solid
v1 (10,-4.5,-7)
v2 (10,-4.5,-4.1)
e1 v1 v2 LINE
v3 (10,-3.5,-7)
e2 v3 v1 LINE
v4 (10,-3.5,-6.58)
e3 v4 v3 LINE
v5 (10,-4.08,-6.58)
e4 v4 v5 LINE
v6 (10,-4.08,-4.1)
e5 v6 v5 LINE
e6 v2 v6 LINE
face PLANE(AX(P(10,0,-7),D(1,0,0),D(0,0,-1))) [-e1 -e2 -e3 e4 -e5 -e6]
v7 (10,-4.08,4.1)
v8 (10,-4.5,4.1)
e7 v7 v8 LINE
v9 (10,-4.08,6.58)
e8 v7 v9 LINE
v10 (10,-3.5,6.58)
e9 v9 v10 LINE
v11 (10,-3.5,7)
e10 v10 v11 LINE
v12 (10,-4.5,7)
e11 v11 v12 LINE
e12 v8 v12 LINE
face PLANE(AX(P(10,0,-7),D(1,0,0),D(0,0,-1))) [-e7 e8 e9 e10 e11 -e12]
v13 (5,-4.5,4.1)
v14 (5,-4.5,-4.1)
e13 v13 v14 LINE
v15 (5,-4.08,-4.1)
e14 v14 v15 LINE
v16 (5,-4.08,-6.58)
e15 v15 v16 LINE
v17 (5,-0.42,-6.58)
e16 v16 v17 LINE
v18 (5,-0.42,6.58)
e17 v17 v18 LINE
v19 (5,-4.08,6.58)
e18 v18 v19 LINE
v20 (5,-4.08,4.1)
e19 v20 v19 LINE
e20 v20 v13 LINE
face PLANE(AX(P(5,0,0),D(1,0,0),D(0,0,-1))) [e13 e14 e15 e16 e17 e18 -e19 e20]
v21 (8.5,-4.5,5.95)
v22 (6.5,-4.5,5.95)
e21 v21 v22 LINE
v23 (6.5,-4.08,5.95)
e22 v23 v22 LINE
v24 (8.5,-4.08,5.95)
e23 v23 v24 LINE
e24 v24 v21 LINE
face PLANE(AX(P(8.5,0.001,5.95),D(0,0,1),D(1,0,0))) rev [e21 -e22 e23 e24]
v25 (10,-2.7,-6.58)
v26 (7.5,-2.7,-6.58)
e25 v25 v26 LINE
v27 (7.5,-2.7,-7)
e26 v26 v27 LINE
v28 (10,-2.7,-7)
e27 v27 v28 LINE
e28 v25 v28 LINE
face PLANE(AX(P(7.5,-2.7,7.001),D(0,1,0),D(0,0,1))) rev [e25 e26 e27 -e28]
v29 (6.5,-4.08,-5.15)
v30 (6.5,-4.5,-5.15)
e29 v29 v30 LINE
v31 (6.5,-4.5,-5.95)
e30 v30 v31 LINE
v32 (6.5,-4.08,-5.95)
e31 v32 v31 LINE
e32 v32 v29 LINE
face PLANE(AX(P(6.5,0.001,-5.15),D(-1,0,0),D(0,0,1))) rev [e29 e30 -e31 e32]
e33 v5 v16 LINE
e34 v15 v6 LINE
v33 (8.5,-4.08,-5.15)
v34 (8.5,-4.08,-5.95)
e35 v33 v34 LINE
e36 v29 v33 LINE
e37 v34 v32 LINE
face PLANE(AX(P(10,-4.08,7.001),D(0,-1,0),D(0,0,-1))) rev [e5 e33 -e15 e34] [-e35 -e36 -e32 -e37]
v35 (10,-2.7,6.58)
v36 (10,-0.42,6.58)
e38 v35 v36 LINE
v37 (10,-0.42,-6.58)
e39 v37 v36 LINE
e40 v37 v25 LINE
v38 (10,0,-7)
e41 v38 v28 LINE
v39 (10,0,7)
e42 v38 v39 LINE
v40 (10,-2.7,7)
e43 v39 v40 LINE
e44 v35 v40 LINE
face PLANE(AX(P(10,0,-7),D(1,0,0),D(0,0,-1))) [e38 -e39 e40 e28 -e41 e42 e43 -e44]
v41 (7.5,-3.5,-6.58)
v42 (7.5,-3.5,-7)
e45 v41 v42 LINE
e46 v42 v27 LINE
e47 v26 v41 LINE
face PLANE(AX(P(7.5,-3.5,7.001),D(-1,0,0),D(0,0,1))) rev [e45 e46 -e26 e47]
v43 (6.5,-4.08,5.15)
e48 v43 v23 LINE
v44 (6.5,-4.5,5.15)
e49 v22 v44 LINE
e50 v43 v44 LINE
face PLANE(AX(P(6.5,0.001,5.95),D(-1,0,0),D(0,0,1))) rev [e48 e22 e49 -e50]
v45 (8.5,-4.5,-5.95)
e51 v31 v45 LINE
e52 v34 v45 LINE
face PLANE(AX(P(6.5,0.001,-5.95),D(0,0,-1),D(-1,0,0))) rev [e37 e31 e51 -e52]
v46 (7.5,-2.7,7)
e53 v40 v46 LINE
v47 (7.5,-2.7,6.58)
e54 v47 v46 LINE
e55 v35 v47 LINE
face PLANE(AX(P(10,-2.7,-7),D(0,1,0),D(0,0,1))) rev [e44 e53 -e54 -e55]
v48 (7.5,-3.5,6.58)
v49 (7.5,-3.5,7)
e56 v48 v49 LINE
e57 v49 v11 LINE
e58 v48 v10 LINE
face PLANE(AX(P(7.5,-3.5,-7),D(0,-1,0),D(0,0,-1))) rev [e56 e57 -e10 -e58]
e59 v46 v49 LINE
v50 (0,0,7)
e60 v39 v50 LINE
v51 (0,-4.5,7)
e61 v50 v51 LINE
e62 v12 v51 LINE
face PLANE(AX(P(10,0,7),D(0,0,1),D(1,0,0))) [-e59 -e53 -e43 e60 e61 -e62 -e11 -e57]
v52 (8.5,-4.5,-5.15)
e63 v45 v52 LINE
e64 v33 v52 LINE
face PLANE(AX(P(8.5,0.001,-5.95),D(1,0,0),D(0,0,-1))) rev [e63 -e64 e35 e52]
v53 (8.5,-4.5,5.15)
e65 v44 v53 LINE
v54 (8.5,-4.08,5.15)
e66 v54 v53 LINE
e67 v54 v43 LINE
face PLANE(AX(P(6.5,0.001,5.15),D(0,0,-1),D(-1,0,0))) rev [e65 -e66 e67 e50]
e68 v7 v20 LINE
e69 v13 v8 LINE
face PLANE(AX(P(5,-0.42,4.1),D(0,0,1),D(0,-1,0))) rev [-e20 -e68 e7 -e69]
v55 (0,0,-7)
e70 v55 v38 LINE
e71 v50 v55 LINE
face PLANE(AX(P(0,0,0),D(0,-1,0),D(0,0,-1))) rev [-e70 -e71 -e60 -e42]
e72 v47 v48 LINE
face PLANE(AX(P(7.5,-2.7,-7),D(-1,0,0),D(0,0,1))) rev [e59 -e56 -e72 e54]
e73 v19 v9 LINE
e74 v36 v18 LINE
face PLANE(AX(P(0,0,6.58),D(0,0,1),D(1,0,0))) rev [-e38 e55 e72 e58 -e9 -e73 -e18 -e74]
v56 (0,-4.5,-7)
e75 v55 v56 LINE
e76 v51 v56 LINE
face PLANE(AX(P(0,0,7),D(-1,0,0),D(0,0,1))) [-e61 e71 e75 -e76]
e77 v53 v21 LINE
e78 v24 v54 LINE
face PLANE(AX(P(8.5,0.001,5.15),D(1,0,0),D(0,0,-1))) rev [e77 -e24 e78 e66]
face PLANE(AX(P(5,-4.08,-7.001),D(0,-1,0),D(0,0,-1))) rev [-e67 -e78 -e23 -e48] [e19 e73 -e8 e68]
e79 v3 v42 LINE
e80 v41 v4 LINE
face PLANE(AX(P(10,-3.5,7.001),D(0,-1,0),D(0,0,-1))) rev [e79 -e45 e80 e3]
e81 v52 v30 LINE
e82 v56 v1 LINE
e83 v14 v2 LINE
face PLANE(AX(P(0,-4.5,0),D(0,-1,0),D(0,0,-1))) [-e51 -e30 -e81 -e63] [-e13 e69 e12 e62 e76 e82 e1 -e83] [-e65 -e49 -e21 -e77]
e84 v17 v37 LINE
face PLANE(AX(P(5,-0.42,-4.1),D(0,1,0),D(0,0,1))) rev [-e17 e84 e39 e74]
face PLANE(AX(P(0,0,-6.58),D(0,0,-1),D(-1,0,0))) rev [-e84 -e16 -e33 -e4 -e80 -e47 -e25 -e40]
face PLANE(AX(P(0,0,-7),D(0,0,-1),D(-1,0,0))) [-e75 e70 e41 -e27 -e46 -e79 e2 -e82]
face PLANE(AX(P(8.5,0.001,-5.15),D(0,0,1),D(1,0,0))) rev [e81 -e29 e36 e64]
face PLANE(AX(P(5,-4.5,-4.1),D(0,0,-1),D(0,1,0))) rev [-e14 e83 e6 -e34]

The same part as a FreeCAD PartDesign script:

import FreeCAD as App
import Part
import Sketcher

doc = App.newDocument("Part")
body = doc.addObject("PartDesign::Body", "Body")

sketch1 = body.newObject("Sketcher::SketchObject", "Sketch")
sketch1.AttachmentSupport = (doc.getObject("XZ_Plane"), [""])
sketch1.MapMode = "FlatFace"
sketch1.AttachmentOffset = App.Placement(App.Vector(0, 0, 4.5), App.Rotation())
sketch1.addGeometry(Part.LineSegment(App.Vector(0, 7, 0), App.Vector(0, -7, 0)), False)
sketch1.addGeometry(Part.LineSegment(App.Vector(0, -7, 0), App.Vector(10, -7, 0)), False)
sketch1.addGeometry(Part.LineSegment(App.Vector(10, -7, 0), App.Vector(10, 7, 0)), False)
sketch1.addGeometry(Part.LineSegment(App.Vector(10, 7, 0), App.Vector(0, 7, 0)), False)
sketch1.addConstraint(Sketcher.Constraint("Coincident", 0, 2, 1, 1))
sketch1.addConstraint(Sketcher.Constraint("Coincident", 1, 2, 2, 1))
sketch1.addConstraint(Sketcher.Constraint("Coincident", 2, 2, 3, 1))
sketch1.addConstraint(Sketcher.Constraint("Coincident", 3, 2, 0, 1))
sketch1.addConstraint(Sketcher.Constraint("Vertical", 0))
sketch1.addConstraint(Sketcher.Constraint("Horizontal", 1))
sketch1.addConstraint(Sketcher.Constraint("Vertical", 2))
sketch1.addConstraint(Sketcher.Constraint("Horizontal", 3))
sketch1.addConstraint(Sketcher.Constraint("Symmetric", 0, 2, 3, 2, -1, 1))
sketch1.addConstraint(Sketcher.Constraint("DistanceX", 1, 1, 1, 2, 10.0))
sketch1.addConstraint(Sketcher.Constraint("DistanceY", 0, 2, 0, 1, 14.0))
pad1 = body.newObject("PartDesign::Pad", "Pad")
pad1.Profile = sketch1
pad1.Length = 4.5
pad1.Reversed = True

sketch2 = body.newObject("Sketcher::SketchObject", "Sketch001")
sketch2.AttachmentSupport = (doc.getObject("YZ_Plane"), [""])
sketch2.MapMode = "FlatFace"
sketch2.AttachmentOffset = App.Placement(App.Vector(0, 0, 10), App.Rotation())
sketch2.addGeometry(Part.LineSegment(App.Vector(-0.42, 4.1, 0), App.Vector(-4.5, 4.1, 0)), False)
sketch2.addGeometry(Part.LineSegment(App.Vector(-4.5, 4.1, 0), App.Vector(-4.5, -4.1, 0)), False)
sketch2.addGeometry(Part.LineSegment(App.Vector(-4.5, -4.1, 0), App.Vector(-0.42, -4.1, 0)), False)
sketch2.addGeometry(Part.LineSegment(App.Vector(-0.42, -4.1, 0), App.Vector(-0.42, 4.1, 0)), False)
sketch2.addConstraint(Sketcher.Constraint("Coincident", 0, 2, 1, 1))
sketch2.addConstraint(Sketcher.Constraint("Coincident", 1, 2, 2, 1))
sketch2.addConstraint(Sketcher.Constraint("Coincident", 2, 2, 3, 1))
sketch2.addConstraint(Sketcher.Constraint("Coincident", 3, 2, 0, 1))
sketch2.addConstraint(Sketcher.Constraint("Horizontal", 0))
sketch2.addConstraint(Sketcher.Constraint("Vertical", 1))
sketch2.addConstraint(Sketcher.Constraint("Horizontal", 2))
sketch2.addConstraint(Sketcher.Constraint("Vertical", 3))
sketch2.addConstraint(Sketcher.Constraint("DistanceY", 1, 2, 1, 1, 8.2))
sketch2.addConstraint(Sketcher.Constraint("DistanceX", 0, 2, 0, 1, 4.08))
sketch2.addConstraint(Sketcher.Constraint("DistanceX", 0, 2, -1, 1, 4.5))
sketch2.addConstraint(Sketcher.Constraint("DistanceY", -1, 1, 0, 2, 4.1))
pocket1 = body.newObject("PartDesign::Pocket", "Pocket")
pocket1.Profile = sketch2
pocket1.Length = 5

sketch3 = body.newObject("Sketcher::SketchObject", "Sketch002")
sketch3.AttachmentSupport = (doc.getObject("XY_Plane"), [""])
sketch3.MapMode = "FlatFace"
sketch3.AttachmentOffset = App.Placement(App.Vector(0, 0, 6.58), App.Rotation())
sketch3.addGeometry(Part.LineSegment(App.Vector(5, -0.42, 0), App.Vector(5, -4.08, 0)), False)
sketch3.addGeometry(Part.LineSegment(App.Vector(5, -4.08, 0), App.Vector(10, -4.08, 0)), False)
sketch3.addGeometry(Part.LineSegment(App.Vector(10, -4.08, 0), App.Vector(10, -0.42, 0)), False)
sketch3.addGeometry(Part.LineSegment(App.Vector(10, -0.42, 0), App.Vector(5, -0.42, 0)), False)
sketch3.addConstraint(Sketcher.Constraint("Coincident", 0, 2, 1, 1))
sketch3.addConstraint(Sketcher.Constraint("Coincident", 1, 2, 2, 1))
sketch3.addConstraint(Sketcher.Constraint("Coincident", 2, 2, 3, 1))
sketch3.addConstraint(Sketcher.Constraint("Coincident", 3, 2, 0, 1))
sketch3.addConstraint(Sketcher.Constraint("Vertical", 0))
sketch3.addConstraint(Sketcher.Constraint("Horizontal", 1))
sketch3.addConstraint(Sketcher.Constraint("Vertical", 2))
sketch3.addConstraint(Sketcher.Constraint("Horizontal", 3))
sketch3.addConstraint(Sketcher.Constraint("DistanceX", 1, 1, 1, 2, 5.0))
sketch3.addConstraint(Sketcher.Constraint("DistanceX", -1, 1, 0, 2, 5.0))
sketch3.addConstraint(Sketcher.Constraint("DistanceY", 0, 2, 0, 1, 3.66))
sketch3.addConstraint(Sketcher.Constraint("DistanceY", 0, 2, -1, 1, 4.08))
pocket2 = body.newObject("PartDesign::Pocket", "Pocket001")
pocket2.Profile = sketch3
pocket2.Type = "UpToFirst"

sketch4 = body.newObject("Sketcher::SketchObject", "Sketch003")
sketch4.AttachmentSupport = (doc.getObject("XY_Plane"), [""])
sketch4.MapMode = "FlatFace"
sketch4.AttachmentOffset = App.Placement(App.Vector(0, 0, -6.58), App.Rotation())
sketch4.addGeometry(Part.LineSegment(App.Vector(10, -0.42, 0), App.Vector(10, -4.08, 0)), False)
sketch4.addGeometry(Part.LineSegment(App.Vector(10, -4.08, 0), App.Vector(5, -4.08, 0)), False)
sketch4.addGeometry(Part.LineSegment(App.Vector(5, -4.08, 0), App.Vector(5, -0.42, 0)), False)
sketch4.addGeometry(Part.LineSegment(App.Vector(5, -0.42, 0), App.Vector(10, -0.42, 0)), False)
sketch4.addConstraint(Sketcher.Constraint("Coincident", 0, 2, 1, 1))
sketch4.addConstraint(Sketcher.Constraint("Coincident", 1, 2, 2, 1))
sketch4.addConstraint(Sketcher.Constraint("Coincident", 2, 2, 3, 1))
sketch4.addConstraint(Sketcher.Constraint("Coincident", 3, 2, 0, 1))
sketch4.addConstraint(Sketcher.Constraint("Vertical", 0))
sketch4.addConstraint(Sketcher.Constraint("Horizontal", 1))
sketch4.addConstraint(Sketcher.Constraint("Vertical", 2))
sketch4.addConstraint(Sketcher.Constraint("Horizontal", 3))
sketch4.addConstraint(Sketcher.Constraint("DistanceX", 1, 2, 1, 1, 5.0))
sketch4.addConstraint(Sketcher.Constraint("DistanceX", -1, 1, 0, 2, 10.0))
sketch4.addConstraint(Sketcher.Constraint("DistanceY", 0, 2, 0, 1, 3.66))
sketch4.addConstraint(Sketcher.Constraint("DistanceY", 0, 2, -1, 1, 4.08))
pocket3 = body.newObject("PartDesign::Pocket", "Pocket002")
pocket3.Profile = sketch4
pocket3.Type = "UpToFirst"
pocket3.Reversed = True

sketch5 = body.newObject("Sketcher::SketchObject", "Sketch004")
sketch5.AttachmentSupport = (doc.getObject("XY_Plane"), [""])
sketch5.MapMode = "FlatFace"
sketch5.AttachmentOffset = App.Placement(App.Vector(0, 0, -7), App.Rotation())
sketch5.addGeometry(Part.LineSegment(App.Vector(10, -2.7, 0), App.Vector(10, -3.5, 0)), False)
sketch5.addGeometry(Part.LineSegment(App.Vector(10, -3.5, 0), App.Vector(7.5, -3.5, 0)), False)
sketch5.addGeometry(Part.LineSegment(App.Vector(7.5, -3.5, 0), App.Vector(7.5, -2.7, 0)), False)
sketch5.addGeometry(Part.LineSegment(App.Vector(7.5, -2.7, 0), App.Vector(10, -2.7, 0)), False)
sketch5.addConstraint(Sketcher.Constraint("Coincident", 0, 2, 1, 1))
sketch5.addConstraint(Sketcher.Constraint("Coincident", 1, 2, 2, 1))
sketch5.addConstraint(Sketcher.Constraint("Coincident", 2, 2, 3, 1))
sketch5.addConstraint(Sketcher.Constraint("Coincident", 3, 2, 0, 1))
sketch5.addConstraint(Sketcher.Constraint("Vertical", 0))
sketch5.addConstraint(Sketcher.Constraint("Horizontal", 1))
sketch5.addConstraint(Sketcher.Constraint("Vertical", 2))
sketch5.addConstraint(Sketcher.Constraint("Horizontal", 3))
sketch5.addConstraint(Sketcher.Constraint("DistanceX", 1, 2, 1, 1, 2.5))
sketch5.addConstraint(Sketcher.Constraint("DistanceY", 0, 2, 0, 1, 0.8))
sketch5.addConstraint(Sketcher.Constraint("DistanceX", -1, 1, 0, 2, 10.0))
sketch5.addConstraint(Sketcher.Constraint("DistanceY", 0, 2, -1, 1, 3.5))
pocket4 = body.newObject("PartDesign::Pocket", "Pocket003")
pocket4.Profile = sketch5
pocket4.Type = "UpToFirst"
pocket4.Reversed = True

sketch6 = body.newObject("Sketcher::SketchObject", "Sketch005")
sketch6.AttachmentSupport = (doc.getObject("XY_Plane"), [""])
sketch6.MapMode = "FlatFace"
sketch6.AttachmentOffset = App.Placement(App.Vector(0, 0, 7), App.Rotation())
sketch6.addGeometry(Part.LineSegment(App.Vector(7.5, -2.7, 0), App.Vector(7.5, -3.5, 0)), False)
sketch6.addGeometry(Part.LineSegment(App.Vector(7.5, -3.5, 0), App.Vector(10, -3.5, 0)), False)
sketch6.addGeometry(Part.LineSegment(App.Vector(10, -3.5, 0), App.Vector(10, -2.7, 0)), False)
sketch6.addGeometry(Part.LineSegment(App.Vector(10, -2.7, 0), App.Vector(7.5, -2.7, 0)), False)
sketch6.addConstraint(Sketcher.Constraint("Coincident", 0, 2, 1, 1))
sketch6.addConstraint(Sketcher.Constraint("Coincident", 1, 2, 2, 1))
sketch6.addConstraint(Sketcher.Constraint("Coincident", 2, 2, 3, 1))
sketch6.addConstraint(Sketcher.Constraint("Coincident", 3, 2, 0, 1))
sketch6.addConstraint(Sketcher.Constraint("Vertical", 0))
sketch6.addConstraint(Sketcher.Constraint("Horizontal", 1))
sketch6.addConstraint(Sketcher.Constraint("Vertical", 2))
sketch6.addConstraint(Sketcher.Constraint("Horizontal", 3))
sketch6.addConstraint(Sketcher.Constraint("DistanceX", 1, 1, 1, 2, 2.5))
sketch6.addConstraint(Sketcher.Constraint("DistanceY", 0, 2, 0, 1, 0.8))
sketch6.addConstraint(Sketcher.Constraint("DistanceX", -1, 1, 1, 2, 10.0))
sketch6.addConstraint(Sketcher.Constraint("DistanceY", 0, 2, -1, 1, 3.5))
pocket5 = body.newObject("PartDesign::Pocket", "Pocket004")
pocket5.Profile = sketch6
pocket5.Type = "ThroughAll"

sketch7 = body.newObject("Sketcher::SketchObject", "Sketch006")
sketch7.AttachmentSupport = (doc.getObject("XZ_Plane"), [""])
sketch7.MapMode = "FlatFace"
sketch7.AttachmentOffset = App.Placement(App.Vector(0, 0, 4.5), App.Rotation())
sketch7.addGeometry(Part.LineSegment(App.Vector(6.5, 5.95, 0), App.Vector(6.5, 5.15, 0)), False)
sketch7.addGeometry(Part.LineSegment(App.Vector(6.5, 5.15, 0), App.Vector(8.5, 5.15, 0)), False)
sketch7.addGeometry(Part.LineSegment(App.Vector(8.5, 5.15, 0), App.Vector(8.5, 5.95, 0)), False)
sketch7.addGeometry(Part.LineSegment(App.Vector(8.5, 5.95, 0), App.Vector(6.5, 5.95, 0)), False)
sketch7.addConstraint(Sketcher.Constraint("Coincident", 0, 2, 1, 1))
sketch7.addConstraint(Sketcher.Constraint("Coincident", 1, 2, 2, 1))
sketch7.addConstraint(Sketcher.Constraint("Coincident", 2, 2, 3, 1))
sketch7.addConstraint(Sketcher.Constraint("Coincident", 3, 2, 0, 1))
sketch7.addConstraint(Sketcher.Constraint("Vertical", 0))
sketch7.addConstraint(Sketcher.Constraint("Horizontal", 1))
sketch7.addConstraint(Sketcher.Constraint("Vertical", 2))
sketch7.addConstraint(Sketcher.Constraint("Horizontal", 3))
sketch7.addConstraint(Sketcher.Constraint("DistanceX", 1, 1, 1, 2, 2.0))
sketch7.addConstraint(Sketcher.Constraint("DistanceY", 0, 2, 0, 1, 0.8))
sketch7.addConstraint(Sketcher.Constraint("DistanceX", -1, 1, 0, 2, 6.5))
sketch7.addConstraint(Sketcher.Constraint("DistanceY", -1, 1, 0, 2, 5.15))
pocket6 = body.newObject("PartDesign::Pocket", "Pocket005")
pocket6.Profile = sketch7
pocket6.Type = "UpToFirst"

sketch8 = body.newObject("Sketcher::SketchObject", "Sketch007")
sketch8.AttachmentSupport = (doc.getObject("XZ_Plane"), [""])
sketch8.MapMode = "FlatFace"
sketch8.AttachmentOffset = App.Placement(App.Vector(0, 0, 4.5), App.Rotation())
sketch8.addGeometry(Part.LineSegment(App.Vector(6.5, -5.15, 0), App.Vector(6.5, -5.95, 0)), False)
sketch8.addGeometry(Part.LineSegment(App.Vector(6.5, -5.95, 0), App.Vector(8.5, -5.95, 0)), False)
sketch8.addGeometry(Part.LineSegment(App.Vector(8.5, -5.95, 0), App.Vector(8.5, -5.15, 0)), False)
sketch8.addGeometry(Part.LineSegment(App.Vector(8.5, -5.15, 0), App.Vector(6.5, -5.15, 0)), False)
sketch8.addConstraint(Sketcher.Constraint("Coincident", 0, 2, 1, 1))
sketch8.addConstraint(Sketcher.Constraint("Coincident", 1, 2, 2, 1))
sketch8.addConstraint(Sketcher.Constraint("Coincident", 2, 2, 3, 1))
sketch8.addConstraint(Sketcher.Constraint("Coincident", 3, 2, 0, 1))
sketch8.addConstraint(Sketcher.Constraint("Vertical", 0))
sketch8.addConstraint(Sketcher.Constraint("Horizontal", 1))
sketch8.addConstraint(Sketcher.Constraint("Vertical", 2))
sketch8.addConstraint(Sketcher.Constraint("Horizontal", 3))
sketch8.addConstraint(Sketcher.Constraint("DistanceX", 1, 1, 1, 2, 2.0))
sketch8.addConstraint(Sketcher.Constraint("DistanceY", 0, 2, 0, 1, 0.8))
sketch8.addConstraint(Sketcher.Constraint("DistanceX", -1, 1, 0, 2, 6.5))
sketch8.addConstraint(Sketcher.Constraint("DistanceY", 0, 2, -1, 1, 5.95))
pocket7 = body.newObject("PartDesign::Pocket", "Pocket006")
pocket7.Profile = sketch8
pocket7.Type = "UpToFirst"

doc.recompute()
